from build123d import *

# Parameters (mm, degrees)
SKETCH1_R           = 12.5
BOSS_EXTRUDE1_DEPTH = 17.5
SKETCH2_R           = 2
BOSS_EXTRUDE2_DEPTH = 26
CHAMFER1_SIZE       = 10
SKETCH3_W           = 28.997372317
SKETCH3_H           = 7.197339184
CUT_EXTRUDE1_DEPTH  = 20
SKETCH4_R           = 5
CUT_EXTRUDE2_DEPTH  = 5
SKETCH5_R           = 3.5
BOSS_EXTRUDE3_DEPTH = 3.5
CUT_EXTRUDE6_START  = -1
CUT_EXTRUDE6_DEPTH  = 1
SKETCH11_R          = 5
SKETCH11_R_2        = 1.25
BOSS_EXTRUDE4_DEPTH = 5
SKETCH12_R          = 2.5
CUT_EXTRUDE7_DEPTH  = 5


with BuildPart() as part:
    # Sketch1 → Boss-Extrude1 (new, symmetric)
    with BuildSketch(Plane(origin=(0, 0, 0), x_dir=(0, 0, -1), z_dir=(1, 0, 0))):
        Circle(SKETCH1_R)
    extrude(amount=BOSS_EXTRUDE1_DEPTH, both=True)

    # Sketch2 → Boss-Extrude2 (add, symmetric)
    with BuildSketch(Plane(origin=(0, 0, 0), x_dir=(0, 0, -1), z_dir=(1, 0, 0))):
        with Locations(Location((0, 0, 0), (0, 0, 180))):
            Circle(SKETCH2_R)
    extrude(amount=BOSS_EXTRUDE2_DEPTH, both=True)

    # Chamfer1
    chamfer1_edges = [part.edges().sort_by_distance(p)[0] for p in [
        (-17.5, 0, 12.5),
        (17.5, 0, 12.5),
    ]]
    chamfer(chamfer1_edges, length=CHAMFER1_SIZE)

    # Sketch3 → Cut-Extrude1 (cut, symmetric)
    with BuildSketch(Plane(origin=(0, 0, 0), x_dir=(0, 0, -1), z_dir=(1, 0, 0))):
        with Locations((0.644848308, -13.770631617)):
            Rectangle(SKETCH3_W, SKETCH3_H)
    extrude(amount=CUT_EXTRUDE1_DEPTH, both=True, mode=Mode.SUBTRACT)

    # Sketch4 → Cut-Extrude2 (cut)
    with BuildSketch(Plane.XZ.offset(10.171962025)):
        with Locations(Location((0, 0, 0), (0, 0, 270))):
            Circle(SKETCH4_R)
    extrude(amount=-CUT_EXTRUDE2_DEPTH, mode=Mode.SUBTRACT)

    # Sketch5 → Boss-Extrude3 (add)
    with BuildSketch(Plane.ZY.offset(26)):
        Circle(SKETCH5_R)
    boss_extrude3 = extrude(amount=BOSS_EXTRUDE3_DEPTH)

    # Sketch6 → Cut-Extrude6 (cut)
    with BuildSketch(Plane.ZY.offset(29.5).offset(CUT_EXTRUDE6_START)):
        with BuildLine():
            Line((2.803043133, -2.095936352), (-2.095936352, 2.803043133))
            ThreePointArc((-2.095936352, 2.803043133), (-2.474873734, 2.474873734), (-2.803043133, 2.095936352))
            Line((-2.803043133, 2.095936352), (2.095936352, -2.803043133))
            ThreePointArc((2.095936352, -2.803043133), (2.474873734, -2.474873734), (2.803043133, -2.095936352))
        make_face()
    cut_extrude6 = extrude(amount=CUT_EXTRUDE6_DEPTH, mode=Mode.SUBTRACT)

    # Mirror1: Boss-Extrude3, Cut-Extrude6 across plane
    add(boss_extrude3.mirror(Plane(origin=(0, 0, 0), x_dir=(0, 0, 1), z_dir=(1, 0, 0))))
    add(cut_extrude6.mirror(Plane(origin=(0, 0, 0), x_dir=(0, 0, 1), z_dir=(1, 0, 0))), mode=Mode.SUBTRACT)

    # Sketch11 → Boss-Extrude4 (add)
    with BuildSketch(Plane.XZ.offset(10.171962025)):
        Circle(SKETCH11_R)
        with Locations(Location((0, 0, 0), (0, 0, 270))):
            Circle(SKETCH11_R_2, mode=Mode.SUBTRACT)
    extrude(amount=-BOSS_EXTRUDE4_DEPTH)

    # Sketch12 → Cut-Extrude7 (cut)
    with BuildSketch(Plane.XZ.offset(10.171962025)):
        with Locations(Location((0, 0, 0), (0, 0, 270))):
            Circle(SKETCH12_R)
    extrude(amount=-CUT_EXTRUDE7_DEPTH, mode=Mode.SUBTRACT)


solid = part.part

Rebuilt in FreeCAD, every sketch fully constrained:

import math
import FreeCAD as App
import Part
import Sketcher
from FreeCAD import Vector
Q = App.Units.Quantity


def edges_at(feature, points):
    """Names of the edges that pass closest to the given points."""
    edges = feature.Shape.Edges
    near = lambda p: min(range(len(edges)), key=lambda i: edges[i].distToShape(Part.Vertex(*p))[0])
    return sorted({f"Edge{near(p) + 1}" for p in points})

doc = App.newDocument("Part")
params = doc.addObject("Spreadsheet::Sheet", "Params")
for row, (alias, value) in enumerate([
    ("sketch1_diameter", "25 mm"),
    ("pad1_length", "35 mm"),
    ("sketch2_diameter", "4 mm"),
    ("pad2_length", "52 mm"),
    ("chamfer_size", "10 mm"),
    ("pocket1_length", "40 mm"),
    ("sketch4_diameter", "10 mm"),
    ("pocket2_length", "5 mm"),
    ("sketch5_diameter", "7 mm"),
    ("pad3_length", "3.5 mm"),
    ("sketch6_radius", "3.5 mm"),
    ("pocket3_length", "1 mm"),
    ("sketch7_diameter", "10 mm"),
    ("sketch7_diameter2", "2.5 mm"),
    ("pad4_length", "5 mm"),
    ("sketch8_diameter", "5 mm"),
    ("pocket4_length", "5 mm"),
], start=1):
    params.set(f"A{row}", alias)
    params.set(f"B{row}", "=" + value)
    params.setAlias(f"B{row}", alias)

body = doc.addObject("PartDesign::Body", "Body")

sketch1 = body.newObject("Sketcher::SketchObject", "Sketch")
sketch1.AttachmentSupport = (doc.getObject("YZ_Plane"), [""])
sketch1.MapMode = "FlatFace"
sketch1.addGeometry(Part.Circle(Vector(0, 0, 0), Vector(0, 0, 1), 12.5), False)
sketch1.addConstraint([
    Sketcher.Constraint("Coincident", 0, 3, -1, 1),
    Sketcher.Constraint("Diameter", 0, Q("25 mm")),
])
sketch1.setExpression("Constraints[1]", "Params.sketch1_diameter")
pad1 = body.newObject("PartDesign::Pad", "Pad")
pad1.Profile = sketch1
pad1.setExpression("Length", "Params.pad1_length")
pad1.Midplane = True

sketch2 = body.newObject("Sketcher::SketchObject", "Sketch001")
sketch2.AttachmentSupport = (doc.getObject("YZ_Plane"), [""])
sketch2.MapMode = "FlatFace"
sketch2.addGeometry(Part.Circle(Vector(0, 0, 0), Vector(0, 0, 1), 2), False)
sketch2.addConstraint([
    Sketcher.Constraint("Coincident", 0, 3, -1, 1),
    Sketcher.Constraint("Diameter", 0, Q("4 mm")),
])
sketch2.setExpression("Constraints[1]", "Params.sketch2_diameter")
pad2 = body.newObject("PartDesign::Pad", "Pad001")
pad2.Profile = sketch2
pad2.setExpression("Length", "Params.pad2_length")
pad2.Midplane = True
doc.recompute()

chamfer = body.newObject("PartDesign::Chamfer", "Chamfer")
chamfer.Base = (pad2, edges_at(pad2, [(-17.5, 0, 12.5), (17.5, 0, 12.5)]))
chamfer.setExpression("Size", "Params.chamfer_size")

sketch3 = body.newObject("Sketcher::SketchObject", "Sketch002")
sketch3.AttachmentSupport = (doc.getObject("YZ_Plane"), [""])
sketch3.MapMode = "FlatFace"
sketch3.addGeometry([
    Part.LineSegment(Vector(-10.171962, 13.853838, 0), Vector(-17.369301, 13.853838, 0)),
    Part.LineSegment(Vector(-17.369301, 13.853838, 0), Vector(-17.369301, -15.143534, 0)),
    Part.LineSegment(Vector(-17.369301, -15.143534, 0), Vector(-10.171962, -15.143534, 0)),
    Part.LineSegment(Vector(-10.171962, -15.143534, 0), Vector(-10.171962, 13.853838, 0)),
], False)
sketch3.addConstraint([
    Sketcher.Constraint("Coincident", 0, 2, 1, 1),
    Sketcher.Constraint("Coincident", 1, 2, 2, 1),
    Sketcher.Constraint("Coincident", 2, 2, 3, 1),
    Sketcher.Constraint("Coincident", 3, 2, 0, 1),
    Sketcher.Constraint("Horizontal", 0),
    Sketcher.Constraint("Vertical", 1),
    Sketcher.Constraint("Horizontal", 2),
    Sketcher.Constraint("Vertical", 3),
    Sketcher.Constraint("DistanceX", 0, 2, 0, 1, Q("7.197339 mm")),
    Sketcher.Constraint("DistanceX", 0, 2, -1, 1, Q("17.369301 mm")),
    Sketcher.Constraint("DistanceY", 1, 2, 1, 1, Q("28.997372 mm")),
    Sketcher.Constraint("DistanceY", -1, 1, 0, 2, Q("13.853838 mm")),
])
pocket1 = body.newObject("PartDesign::Pocket", "Pocket")
pocket1.Profile = sketch3
pocket1.setExpression("Length", "Params.pocket1_length")
pocket1.Midplane = True

sketch4 = body.newObject("Sketcher::SketchObject", "Sketch003")
sketch4.AttachmentSupport = (doc.getObject("XZ_Plane"), [""])
sketch4.MapMode = "FlatFace"
sketch4.AttachmentOffset = App.Placement(Vector(0, 0, 10.171962), App.Rotation())
sketch4.addGeometry(Part.Circle(Vector(0, 0, 0), Vector(0, 0, 1), 5), False)
sketch4.addConstraint([
    Sketcher.Constraint("Coincident", 0, 3, -1, 1),
    Sketcher.Constraint("Diameter", 0, Q("10 mm")),
])
sketch4.setExpression("Constraints[1]", "Params.sketch4_diameter")
pocket2 = body.newObject("PartDesign::Pocket", "Pocket001")
pocket2.Profile = sketch4
pocket2.setExpression("Length", "Params.pocket2_length")

sketch5 = body.newObject("Sketcher::SketchObject", "Sketch004")
sketch5.AttachmentSupport = (doc.getObject("YZ_Plane"), [""])
sketch5.MapMode = "FlatFace"
sketch5.AttachmentOffset = App.Placement(Vector(0, 0, -26), App.Rotation())
sketch5.addGeometry(Part.Circle(Vector(0, 0, 0), Vector(0, 0, 1), 3.5), False)
sketch5.addConstraint([
    Sketcher.Constraint("Coincident", 0, 3, -1, 1),
    Sketcher.Constraint("Diameter", 0, Q("7 mm")),
])
sketch5.setExpression("Constraints[1]", "Params.sketch5_diameter")
pad3 = body.newObject("PartDesign::Pad", "Pad002")
pad3.Profile = sketch5
pad3.setExpression("Length", "Params.pad3_length")
pad3.Reversed = True

sketch6 = body.newObject("Sketcher::SketchObject", "Sketch005")
sketch6.AttachmentSupport = (doc.getObject("YZ_Plane"), [""])
sketch6.MapMode = "FlatFace"
sketch6.AttachmentOffset = App.Placement(Vector(0, 0, -28.5), App.Rotation())
sketch6.addGeometry([
    Part.LineSegment(Vector(-2.095936, 2.803043, 0), Vector(2.803043, -2.095936, 0)),
    Part.ArcOfCircle(Part.Circle(Vector(0, 0, 0), Vector(0, 0, 1), 3.5), math.radians(-53.213211), math.radians(-36.786789)),
    Part.LineSegment(Vector(2.095936, -2.803043, 0), Vector(-2.803043, 2.095936, 0)),
    Part.ArcOfCircle(Part.Circle(Vector(0, 0, 0), Vector(0, 0, 1), 3.5), math.radians(126.786789), math.radians(143.213211)),
], False)
sketch6.addConstraint([
    Sketcher.Constraint("Coincident", 0, 2, 1, 2),
    Sketcher.Constraint("Coincident", 1, 1, 2, 1),
    Sketcher.Constraint("Coincident", 2, 2, 3, 2),
    Sketcher.Constraint("Coincident", 3, 1, 0, 1),
    Sketcher.Constraint("Coincident", 1, 3, -1, 1),
    Sketcher.Constraint("Coincident", 3, 3, -1, 1),
    Sketcher.Constraint("Equal", 1, 3),
    Sketcher.Constraint("Parallel", 0, 2),
    Sketcher.Constraint("Equal", 0, 2),
    Sketcher.Constraint("Radius", 1, Q("3.5 mm")),
    Sketcher.Constraint("Angle", 0, Q("-45 deg")),
    Sketcher.Constraint("DistanceX", 2, 2, 1, 1, Q("4.898979 mm")),
])
sketch6.setExpression("Constraints[9]", "Params.sketch6_radius")
pocket3 = body.newObject("PartDesign::Pocket", "Pocket002")
pocket3.Profile = sketch6
pocket3.setExpression("Length", "Params.pocket3_length")
doc.recompute()

mirrored = body.newObject("PartDesign::Mirrored", "Mirrored")
mirrored.Originals = [pad3, pocket3]
mirrored.MirrorPlane = (doc.getObject("YZ_Plane"), [""])
body.Tip = mirrored

sketch7 = body.newObject("Sketcher::SketchObject", "Sketch006")
sketch7.AttachmentSupport = (doc.getObject("XZ_Plane"), [""])
sketch7.MapMode = "FlatFace"
sketch7.AttachmentOffset = App.Placement(Vector(0, 0, 10.171962), App.Rotation())
sketch7.addGeometry([
    Part.Circle(Vector(0, 0, 0), Vector(0, 0, 1), 5),
    Part.Circle(Vector(0, 0, 0), Vector(0, 0, 1), 1.25),
], False)
sketch7.addConstraint([
    Sketcher.Constraint("Coincident", 0, 3, -1, 1),
    Sketcher.Constraint("Coincident", 1, 3, -1, 1),
    Sketcher.Constraint("Diameter", 0, Q("10 mm")),
    Sketcher.Constraint("Diameter", 1, Q("2.5 mm")),
])
sketch7.setExpression("Constraints[2]", "Params.sketch7_diameter")
sketch7.setExpression("Constraints[3]", "Params.sketch7_diameter2")
pad4 = body.newObject("PartDesign::Pad", "Pad003")
pad4.Profile = sketch7
pad4.setExpression("Length", "Params.pad4_length")
pad4.Reversed = True

sketch8 = body.newObject("Sketcher::SketchObject", "Sketch007")
sketch8.AttachmentSupport = (doc.getObject("XZ_Plane"), [""])
sketch8.MapMode = "FlatFace"
sketch8.AttachmentOffset = App.Placement(Vector(0, 0, 10.171962), App.Rotation())
sketch8.addGeometry(Part.Circle(Vector(0, 0, 0), Vector(0, 0, 1), 2.5), False)
sketch8.addConstraint([
    Sketcher.Constraint("Coincident", 0, 3, -1, 1),
    Sketcher.Constraint("Diameter", 0, Q("5 mm")),
])
sketch8.setExpression("Constraints[1]", "Params.sketch8_diameter")
pocket4 = body.newObject("PartDesign::Pocket", "Pocket003")
pocket4.Profile = sketch8
pocket4.setExpression("Length", "Params.pocket4_length")

doc.recompute()
